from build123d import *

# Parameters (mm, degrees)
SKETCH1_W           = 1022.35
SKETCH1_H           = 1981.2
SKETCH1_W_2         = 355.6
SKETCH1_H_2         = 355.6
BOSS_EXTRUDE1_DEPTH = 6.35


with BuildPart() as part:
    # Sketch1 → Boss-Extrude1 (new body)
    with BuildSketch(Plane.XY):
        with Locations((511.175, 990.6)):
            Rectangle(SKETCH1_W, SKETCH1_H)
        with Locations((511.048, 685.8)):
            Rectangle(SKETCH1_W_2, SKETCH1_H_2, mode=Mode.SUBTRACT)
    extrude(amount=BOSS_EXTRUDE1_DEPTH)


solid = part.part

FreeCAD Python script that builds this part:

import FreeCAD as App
import Part
import Sketcher
from FreeCAD import Vector
Q = App.Units.Quantity


def add_polygon(sketch, points):
    """Adds a closed chain of lines whose ends are joined by coincident constraints."""
    first, n = sketch.GeometryCount, len(points)
    for a, b in zip(points, points[1:] + points[:1]):
        sketch.addGeometry(Part.LineSegment(App.Vector(*a, 0), App.Vector(*b, 0)), False)
    for i in range(n):
        sketch.addConstraint(Sketcher.Constraint("Coincident", first + i, 2, first + (i + 1) % n, 1))

doc = App.newDocument("Part")
params = doc.addObject("Spreadsheet::Sheet", "Params")
for row, (alias, value) in enumerate([
    ("sketch1_width", "14 in"),
    ("sketch1_height", "78 in"),
    ("sketch1_width2", "40.25 in"),
    ("pad1_length", "0.25 in"),
], start=1):
    params.set(f"A{row}", alias)
    params.set(f"B{row}", "=" + value)
    params.setAlias(f"B{row}", alias)

body = doc.addObject("PartDesign::Body", "Body")

# Sketch on XY plane
sketch1 = body.newObject("Sketcher::SketchObject", "Sketch")
sketch1.AttachmentSupport = (doc.getObject("XY_Plane"), [""])
sketch1.MapMode = "FlatFace"
add_polygon(sketch1, [(0, 1981.2), (0, 0), (1022.35, 0), (1022.35, 1981.2)])  # lines 0-3
add_polygon(sketch1, [(688.848, 508), (333.248, 508), (333.248, 863.6), (688.848, 863.6)])  # lines 4-7
sketch1.addConstraint(Sketcher.Constraint("Vertical", 0))
sketch1.addConstraint(Sketcher.Constraint("Horizontal", 1))
sketch1.addConstraint(Sketcher.Constraint("Vertical", 2))
sketch1.addConstraint(Sketcher.Constraint("Horizontal", 3))
sketch1.addConstraint(Sketcher.Constraint("Horizontal", 4))
sketch1.addConstraint(Sketcher.Constraint("Vertical", 5))
sketch1.addConstraint(Sketcher.Constraint("Horizontal", 6))
sketch1.addConstraint(Sketcher.Constraint("Vertical", 7))
sketch1.addConstraint(Sketcher.Constraint("Coincident", 0, 2, -1, 1))
sketch1.addConstraint(Sketcher.Constraint("Equal", 6, 5))
sketch1.addConstraint(Sketcher.Constraint("DistanceX", 4, 2, 4, 1, Q("14 in")))
sketch1.addConstraint(Sketcher.Constraint("DistanceY", 0, 2, 0, 1, Q("78 in")))
sketch1.addConstraint(Sketcher.Constraint("DistanceY", -1, 1, 4, 2, Q("20 in")))
sketch1.addConstraint(Sketcher.Constraint("DistanceX", 1, 1, 1, 2, Q("40.25 in")))
sketch1.addConstraint(Sketcher.Constraint("DistanceX", -1, 1, 4, 2, Q("13.12 in")))
sketch1.setExpression("Constraints[18]", "Params.sketch1_width")
sketch1.setExpression("Constraints[19]", "Params.sketch1_height")
sketch1.setExpression("Constraints[21]", "Params.sketch1_width2")
pad1 = body.newObject("PartDesign::Pad", "Pad")
pad1.Profile = sketch1
pad1.setExpression("Length", "Params.pad1_length")

doc.recompute()
